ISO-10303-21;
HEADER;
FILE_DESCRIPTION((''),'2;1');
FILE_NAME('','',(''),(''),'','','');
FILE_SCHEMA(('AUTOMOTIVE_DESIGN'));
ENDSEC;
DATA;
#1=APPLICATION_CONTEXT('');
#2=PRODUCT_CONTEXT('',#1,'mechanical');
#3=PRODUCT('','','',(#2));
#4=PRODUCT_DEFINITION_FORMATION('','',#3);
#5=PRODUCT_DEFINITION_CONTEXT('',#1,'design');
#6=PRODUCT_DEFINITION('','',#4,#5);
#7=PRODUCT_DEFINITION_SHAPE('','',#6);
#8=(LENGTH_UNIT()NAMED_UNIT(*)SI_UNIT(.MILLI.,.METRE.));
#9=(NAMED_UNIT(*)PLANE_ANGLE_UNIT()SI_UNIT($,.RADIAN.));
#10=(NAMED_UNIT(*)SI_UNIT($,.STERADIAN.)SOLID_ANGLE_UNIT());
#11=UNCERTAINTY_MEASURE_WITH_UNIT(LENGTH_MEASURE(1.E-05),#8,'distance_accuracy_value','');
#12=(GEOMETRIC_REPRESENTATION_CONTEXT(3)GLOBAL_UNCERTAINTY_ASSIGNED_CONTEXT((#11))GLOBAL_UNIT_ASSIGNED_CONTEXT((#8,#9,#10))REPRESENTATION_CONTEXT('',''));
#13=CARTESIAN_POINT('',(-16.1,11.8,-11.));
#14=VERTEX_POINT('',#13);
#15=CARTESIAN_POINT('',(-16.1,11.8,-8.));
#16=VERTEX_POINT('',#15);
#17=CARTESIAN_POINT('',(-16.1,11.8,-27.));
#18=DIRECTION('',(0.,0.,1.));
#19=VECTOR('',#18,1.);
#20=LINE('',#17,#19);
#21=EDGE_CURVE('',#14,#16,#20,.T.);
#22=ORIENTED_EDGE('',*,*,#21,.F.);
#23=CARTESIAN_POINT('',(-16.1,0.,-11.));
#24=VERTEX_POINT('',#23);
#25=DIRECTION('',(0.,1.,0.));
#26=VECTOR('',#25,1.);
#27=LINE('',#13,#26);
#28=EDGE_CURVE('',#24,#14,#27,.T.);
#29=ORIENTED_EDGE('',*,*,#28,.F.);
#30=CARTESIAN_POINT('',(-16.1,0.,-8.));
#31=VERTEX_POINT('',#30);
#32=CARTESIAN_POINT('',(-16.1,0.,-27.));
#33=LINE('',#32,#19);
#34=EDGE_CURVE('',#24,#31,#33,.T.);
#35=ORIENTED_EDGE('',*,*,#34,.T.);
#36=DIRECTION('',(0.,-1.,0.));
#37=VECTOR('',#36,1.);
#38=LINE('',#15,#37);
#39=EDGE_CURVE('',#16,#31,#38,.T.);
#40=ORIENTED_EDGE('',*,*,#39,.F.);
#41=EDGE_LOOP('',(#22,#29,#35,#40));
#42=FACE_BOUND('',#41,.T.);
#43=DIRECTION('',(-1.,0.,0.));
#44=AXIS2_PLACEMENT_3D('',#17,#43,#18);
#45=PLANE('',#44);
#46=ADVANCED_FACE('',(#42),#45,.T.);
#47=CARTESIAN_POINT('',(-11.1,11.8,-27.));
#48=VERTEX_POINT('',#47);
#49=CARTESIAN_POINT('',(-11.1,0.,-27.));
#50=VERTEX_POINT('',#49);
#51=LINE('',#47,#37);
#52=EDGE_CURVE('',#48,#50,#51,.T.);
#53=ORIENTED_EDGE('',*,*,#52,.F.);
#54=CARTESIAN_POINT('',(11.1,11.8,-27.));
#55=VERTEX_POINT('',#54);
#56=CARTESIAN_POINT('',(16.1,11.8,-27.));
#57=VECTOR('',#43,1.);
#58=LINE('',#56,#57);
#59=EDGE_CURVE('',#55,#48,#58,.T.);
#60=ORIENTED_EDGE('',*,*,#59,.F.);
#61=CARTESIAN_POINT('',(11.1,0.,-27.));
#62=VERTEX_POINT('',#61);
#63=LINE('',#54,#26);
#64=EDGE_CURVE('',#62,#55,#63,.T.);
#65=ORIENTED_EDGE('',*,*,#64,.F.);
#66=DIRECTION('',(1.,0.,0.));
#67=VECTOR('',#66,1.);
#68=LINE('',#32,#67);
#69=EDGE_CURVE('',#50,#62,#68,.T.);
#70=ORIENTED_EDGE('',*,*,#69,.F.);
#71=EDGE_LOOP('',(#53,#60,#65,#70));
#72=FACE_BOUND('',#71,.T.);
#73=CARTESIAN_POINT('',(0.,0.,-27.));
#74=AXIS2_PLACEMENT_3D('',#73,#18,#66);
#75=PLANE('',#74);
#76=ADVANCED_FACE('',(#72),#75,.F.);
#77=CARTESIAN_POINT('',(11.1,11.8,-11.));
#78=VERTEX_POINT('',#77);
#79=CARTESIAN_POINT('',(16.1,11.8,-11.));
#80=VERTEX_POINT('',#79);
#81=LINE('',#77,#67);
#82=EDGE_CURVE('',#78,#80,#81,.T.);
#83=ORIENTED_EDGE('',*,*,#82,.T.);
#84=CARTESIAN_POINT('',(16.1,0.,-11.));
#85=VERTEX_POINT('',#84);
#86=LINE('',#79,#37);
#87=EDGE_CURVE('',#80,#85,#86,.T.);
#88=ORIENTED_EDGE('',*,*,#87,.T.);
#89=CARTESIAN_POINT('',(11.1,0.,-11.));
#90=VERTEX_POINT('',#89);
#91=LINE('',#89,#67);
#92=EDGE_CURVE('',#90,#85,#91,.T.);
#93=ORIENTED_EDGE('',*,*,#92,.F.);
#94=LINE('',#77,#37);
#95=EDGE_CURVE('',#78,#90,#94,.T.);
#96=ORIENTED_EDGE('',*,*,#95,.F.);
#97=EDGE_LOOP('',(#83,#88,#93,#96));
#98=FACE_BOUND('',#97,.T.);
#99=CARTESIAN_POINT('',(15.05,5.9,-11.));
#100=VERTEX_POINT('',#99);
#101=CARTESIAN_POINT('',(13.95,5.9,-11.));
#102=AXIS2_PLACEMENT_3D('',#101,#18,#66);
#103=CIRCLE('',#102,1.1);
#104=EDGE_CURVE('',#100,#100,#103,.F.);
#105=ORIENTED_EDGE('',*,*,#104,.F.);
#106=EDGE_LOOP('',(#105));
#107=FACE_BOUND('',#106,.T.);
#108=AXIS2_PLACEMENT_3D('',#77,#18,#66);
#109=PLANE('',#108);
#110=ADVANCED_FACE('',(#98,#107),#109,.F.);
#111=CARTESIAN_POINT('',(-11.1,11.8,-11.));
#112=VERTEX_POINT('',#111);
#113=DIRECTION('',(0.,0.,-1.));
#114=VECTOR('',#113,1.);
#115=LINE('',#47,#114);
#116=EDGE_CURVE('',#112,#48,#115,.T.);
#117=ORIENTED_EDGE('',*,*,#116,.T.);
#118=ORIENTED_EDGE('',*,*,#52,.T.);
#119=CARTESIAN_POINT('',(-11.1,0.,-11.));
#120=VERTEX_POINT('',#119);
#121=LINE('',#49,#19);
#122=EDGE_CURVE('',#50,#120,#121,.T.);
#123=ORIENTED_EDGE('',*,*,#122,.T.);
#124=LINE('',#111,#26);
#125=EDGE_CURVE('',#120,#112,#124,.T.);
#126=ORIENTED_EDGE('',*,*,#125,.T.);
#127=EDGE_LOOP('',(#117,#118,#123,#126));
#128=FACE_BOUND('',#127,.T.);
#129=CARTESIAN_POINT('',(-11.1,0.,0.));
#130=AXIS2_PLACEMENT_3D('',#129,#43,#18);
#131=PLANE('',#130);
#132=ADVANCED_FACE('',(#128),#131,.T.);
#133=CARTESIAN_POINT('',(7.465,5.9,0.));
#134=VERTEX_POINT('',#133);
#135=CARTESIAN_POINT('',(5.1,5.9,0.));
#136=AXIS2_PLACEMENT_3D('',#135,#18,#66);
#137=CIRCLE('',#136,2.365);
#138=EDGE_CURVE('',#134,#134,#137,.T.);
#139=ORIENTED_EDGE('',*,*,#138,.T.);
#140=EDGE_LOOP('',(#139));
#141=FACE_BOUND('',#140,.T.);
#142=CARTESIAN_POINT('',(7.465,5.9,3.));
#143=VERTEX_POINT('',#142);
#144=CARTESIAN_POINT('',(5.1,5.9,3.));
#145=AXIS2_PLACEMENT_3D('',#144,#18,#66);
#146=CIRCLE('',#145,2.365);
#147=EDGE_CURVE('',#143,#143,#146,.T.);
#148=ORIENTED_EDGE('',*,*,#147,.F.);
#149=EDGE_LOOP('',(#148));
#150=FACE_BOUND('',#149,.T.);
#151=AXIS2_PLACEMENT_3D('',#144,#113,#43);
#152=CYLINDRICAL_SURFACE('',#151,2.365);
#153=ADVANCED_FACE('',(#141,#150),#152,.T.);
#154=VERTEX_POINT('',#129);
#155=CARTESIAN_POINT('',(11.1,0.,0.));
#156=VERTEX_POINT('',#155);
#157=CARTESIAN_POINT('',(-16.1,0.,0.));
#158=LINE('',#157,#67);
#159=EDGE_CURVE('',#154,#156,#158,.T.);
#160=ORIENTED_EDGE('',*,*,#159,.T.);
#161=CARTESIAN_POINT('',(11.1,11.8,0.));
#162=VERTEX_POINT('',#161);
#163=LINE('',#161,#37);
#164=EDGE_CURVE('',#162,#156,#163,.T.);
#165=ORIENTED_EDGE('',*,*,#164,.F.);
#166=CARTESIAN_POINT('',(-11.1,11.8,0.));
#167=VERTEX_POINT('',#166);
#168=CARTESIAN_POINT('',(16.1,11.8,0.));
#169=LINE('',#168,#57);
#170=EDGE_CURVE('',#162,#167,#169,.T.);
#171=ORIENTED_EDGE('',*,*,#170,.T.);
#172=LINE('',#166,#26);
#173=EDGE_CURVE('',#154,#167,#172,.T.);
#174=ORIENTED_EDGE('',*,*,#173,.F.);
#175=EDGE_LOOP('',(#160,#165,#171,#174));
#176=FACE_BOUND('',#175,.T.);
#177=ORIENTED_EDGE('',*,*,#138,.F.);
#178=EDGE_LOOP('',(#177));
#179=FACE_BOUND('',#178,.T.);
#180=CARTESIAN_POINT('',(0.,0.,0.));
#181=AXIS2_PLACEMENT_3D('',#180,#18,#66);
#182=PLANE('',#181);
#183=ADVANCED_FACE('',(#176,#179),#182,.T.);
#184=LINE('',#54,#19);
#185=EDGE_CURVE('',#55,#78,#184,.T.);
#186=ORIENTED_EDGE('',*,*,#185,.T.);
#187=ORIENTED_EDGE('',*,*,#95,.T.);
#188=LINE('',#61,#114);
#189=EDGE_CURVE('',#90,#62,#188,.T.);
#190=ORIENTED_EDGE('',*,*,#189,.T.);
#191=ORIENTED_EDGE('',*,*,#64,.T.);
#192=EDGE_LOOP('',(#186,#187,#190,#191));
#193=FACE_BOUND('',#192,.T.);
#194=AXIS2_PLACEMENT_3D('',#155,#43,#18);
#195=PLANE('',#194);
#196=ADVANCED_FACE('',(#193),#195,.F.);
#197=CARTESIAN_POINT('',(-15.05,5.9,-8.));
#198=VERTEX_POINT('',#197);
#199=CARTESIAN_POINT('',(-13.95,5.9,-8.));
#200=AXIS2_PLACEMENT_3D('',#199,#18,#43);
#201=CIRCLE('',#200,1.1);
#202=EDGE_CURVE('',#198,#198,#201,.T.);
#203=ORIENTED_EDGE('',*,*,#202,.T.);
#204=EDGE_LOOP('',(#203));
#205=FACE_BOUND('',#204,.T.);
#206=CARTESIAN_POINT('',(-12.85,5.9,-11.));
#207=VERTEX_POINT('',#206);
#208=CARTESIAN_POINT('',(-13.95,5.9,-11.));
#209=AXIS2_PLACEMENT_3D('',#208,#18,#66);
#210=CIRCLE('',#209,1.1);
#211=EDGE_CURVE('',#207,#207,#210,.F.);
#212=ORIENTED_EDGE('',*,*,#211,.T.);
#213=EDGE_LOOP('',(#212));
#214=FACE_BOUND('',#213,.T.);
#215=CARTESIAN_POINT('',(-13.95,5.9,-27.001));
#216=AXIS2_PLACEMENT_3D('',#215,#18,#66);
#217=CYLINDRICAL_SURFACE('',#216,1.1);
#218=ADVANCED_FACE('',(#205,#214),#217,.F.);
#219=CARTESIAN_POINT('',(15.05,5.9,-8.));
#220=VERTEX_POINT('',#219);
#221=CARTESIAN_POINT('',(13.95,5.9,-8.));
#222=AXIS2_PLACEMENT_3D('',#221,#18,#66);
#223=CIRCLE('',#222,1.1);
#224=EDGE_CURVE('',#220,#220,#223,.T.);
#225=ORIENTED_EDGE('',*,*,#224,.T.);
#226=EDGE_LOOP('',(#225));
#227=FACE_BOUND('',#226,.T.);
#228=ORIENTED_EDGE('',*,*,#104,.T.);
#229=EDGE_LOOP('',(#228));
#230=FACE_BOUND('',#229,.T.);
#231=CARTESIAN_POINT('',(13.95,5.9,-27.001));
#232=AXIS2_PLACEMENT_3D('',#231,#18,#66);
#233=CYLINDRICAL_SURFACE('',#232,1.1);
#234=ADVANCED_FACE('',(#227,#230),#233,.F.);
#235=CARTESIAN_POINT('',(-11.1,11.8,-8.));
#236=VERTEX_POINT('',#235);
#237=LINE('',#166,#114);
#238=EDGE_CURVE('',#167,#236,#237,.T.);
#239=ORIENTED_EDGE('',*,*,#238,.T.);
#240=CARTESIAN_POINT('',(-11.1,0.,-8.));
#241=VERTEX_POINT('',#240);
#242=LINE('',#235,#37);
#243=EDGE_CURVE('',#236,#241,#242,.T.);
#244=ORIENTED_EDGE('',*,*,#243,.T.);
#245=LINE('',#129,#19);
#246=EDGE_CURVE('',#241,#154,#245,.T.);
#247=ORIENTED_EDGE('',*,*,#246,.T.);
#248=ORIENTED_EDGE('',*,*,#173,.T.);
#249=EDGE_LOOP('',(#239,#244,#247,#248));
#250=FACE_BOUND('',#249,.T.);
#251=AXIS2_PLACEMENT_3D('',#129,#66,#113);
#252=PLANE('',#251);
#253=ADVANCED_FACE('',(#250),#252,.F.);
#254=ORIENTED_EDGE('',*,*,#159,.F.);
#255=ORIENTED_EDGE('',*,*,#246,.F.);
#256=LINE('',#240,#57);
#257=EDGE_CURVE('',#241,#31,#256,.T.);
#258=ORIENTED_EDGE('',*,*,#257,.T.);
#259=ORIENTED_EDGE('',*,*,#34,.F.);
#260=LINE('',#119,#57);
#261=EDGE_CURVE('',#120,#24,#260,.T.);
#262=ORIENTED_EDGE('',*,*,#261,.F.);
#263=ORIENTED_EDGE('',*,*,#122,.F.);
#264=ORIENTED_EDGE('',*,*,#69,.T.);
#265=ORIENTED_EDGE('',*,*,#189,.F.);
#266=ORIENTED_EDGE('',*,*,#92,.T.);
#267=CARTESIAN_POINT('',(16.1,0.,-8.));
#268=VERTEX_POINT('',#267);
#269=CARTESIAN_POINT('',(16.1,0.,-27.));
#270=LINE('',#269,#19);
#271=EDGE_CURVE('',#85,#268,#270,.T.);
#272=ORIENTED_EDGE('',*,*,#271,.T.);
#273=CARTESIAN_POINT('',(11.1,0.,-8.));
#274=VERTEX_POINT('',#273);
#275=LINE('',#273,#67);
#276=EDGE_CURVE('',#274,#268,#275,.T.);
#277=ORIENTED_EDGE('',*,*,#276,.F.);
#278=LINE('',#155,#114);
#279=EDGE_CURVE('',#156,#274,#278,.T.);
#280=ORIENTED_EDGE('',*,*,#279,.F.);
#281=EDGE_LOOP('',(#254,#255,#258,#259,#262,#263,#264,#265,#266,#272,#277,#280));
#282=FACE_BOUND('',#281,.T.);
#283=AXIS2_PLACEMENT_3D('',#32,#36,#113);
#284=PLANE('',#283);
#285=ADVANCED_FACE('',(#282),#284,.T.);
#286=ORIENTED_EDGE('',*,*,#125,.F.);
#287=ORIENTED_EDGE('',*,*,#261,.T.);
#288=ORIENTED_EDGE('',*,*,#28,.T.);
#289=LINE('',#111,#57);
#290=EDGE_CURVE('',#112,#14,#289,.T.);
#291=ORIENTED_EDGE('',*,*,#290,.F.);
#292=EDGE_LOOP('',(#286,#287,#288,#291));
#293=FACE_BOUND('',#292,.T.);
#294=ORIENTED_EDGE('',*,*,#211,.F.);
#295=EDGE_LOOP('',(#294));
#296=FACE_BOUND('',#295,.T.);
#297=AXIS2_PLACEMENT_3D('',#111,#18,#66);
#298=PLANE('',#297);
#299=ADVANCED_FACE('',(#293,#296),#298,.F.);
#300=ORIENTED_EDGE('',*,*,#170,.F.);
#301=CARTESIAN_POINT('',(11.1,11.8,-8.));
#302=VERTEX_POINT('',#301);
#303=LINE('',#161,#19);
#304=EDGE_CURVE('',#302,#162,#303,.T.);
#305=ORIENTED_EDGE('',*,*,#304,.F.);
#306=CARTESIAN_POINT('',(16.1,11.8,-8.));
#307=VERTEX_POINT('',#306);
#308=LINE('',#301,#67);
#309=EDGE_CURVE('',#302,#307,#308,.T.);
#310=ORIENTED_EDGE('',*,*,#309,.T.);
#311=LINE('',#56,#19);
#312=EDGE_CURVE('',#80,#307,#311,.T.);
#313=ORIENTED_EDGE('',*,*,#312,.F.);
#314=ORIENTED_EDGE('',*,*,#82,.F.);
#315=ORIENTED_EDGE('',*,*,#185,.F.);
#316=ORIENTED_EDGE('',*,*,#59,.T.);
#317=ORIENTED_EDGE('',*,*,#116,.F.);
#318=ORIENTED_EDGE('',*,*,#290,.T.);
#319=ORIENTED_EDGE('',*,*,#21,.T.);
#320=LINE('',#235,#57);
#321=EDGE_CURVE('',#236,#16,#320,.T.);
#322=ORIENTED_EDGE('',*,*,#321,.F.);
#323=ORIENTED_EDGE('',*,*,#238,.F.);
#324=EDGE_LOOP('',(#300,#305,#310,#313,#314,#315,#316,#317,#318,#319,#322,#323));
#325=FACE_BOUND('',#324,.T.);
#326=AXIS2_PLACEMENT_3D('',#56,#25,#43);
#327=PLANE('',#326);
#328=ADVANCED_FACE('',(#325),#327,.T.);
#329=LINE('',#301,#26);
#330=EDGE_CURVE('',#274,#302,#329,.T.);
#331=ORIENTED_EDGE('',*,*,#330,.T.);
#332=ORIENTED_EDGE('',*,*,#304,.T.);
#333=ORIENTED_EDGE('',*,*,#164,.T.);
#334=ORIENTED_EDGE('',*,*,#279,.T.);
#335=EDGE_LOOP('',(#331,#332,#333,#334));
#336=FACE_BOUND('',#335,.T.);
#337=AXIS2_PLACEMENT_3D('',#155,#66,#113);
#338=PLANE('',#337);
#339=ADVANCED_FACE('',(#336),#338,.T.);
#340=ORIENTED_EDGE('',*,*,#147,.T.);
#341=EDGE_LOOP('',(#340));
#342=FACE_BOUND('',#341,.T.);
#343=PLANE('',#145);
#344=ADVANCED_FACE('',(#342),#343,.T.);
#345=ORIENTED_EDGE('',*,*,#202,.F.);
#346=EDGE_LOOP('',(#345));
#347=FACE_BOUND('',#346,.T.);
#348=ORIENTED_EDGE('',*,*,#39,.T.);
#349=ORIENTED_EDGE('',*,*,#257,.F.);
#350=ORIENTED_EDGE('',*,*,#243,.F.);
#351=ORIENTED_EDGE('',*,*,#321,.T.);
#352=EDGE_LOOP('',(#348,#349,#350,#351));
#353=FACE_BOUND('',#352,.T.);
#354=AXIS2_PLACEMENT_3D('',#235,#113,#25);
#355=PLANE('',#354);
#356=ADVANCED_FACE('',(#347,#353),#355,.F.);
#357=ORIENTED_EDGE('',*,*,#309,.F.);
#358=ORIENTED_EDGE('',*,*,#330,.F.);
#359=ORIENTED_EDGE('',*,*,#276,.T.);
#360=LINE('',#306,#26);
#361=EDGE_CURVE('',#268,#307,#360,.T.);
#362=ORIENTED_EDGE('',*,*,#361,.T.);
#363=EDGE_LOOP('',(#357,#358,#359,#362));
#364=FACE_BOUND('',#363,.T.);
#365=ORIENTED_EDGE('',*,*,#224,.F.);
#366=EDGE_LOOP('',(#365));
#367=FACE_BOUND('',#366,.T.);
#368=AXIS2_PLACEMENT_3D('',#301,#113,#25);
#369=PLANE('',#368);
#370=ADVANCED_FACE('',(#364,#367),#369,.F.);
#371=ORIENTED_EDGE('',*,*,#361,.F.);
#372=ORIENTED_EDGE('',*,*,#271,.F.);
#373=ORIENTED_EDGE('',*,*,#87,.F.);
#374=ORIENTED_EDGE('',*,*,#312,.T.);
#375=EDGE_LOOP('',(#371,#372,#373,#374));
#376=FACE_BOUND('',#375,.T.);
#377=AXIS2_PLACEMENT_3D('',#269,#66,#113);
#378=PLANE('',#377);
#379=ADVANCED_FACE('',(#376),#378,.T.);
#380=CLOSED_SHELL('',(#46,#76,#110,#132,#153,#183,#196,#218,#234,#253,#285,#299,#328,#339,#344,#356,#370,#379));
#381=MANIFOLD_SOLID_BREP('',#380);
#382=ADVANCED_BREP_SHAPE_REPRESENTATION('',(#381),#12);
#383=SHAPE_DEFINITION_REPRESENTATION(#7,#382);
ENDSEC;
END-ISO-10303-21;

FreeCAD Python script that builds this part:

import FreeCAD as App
import Part
import Sketcher
from FreeCAD import Vector
Q = App.Units.Quantity


def add_polygon(sketch, points):
    """Adds a closed chain of lines whose ends are joined by coincident constraints."""
    first, n = sketch.GeometryCount, len(points)
    for a, b in zip(points, points[1:] + points[:1]):
        sketch.addGeometry(Part.LineSegment(App.Vector(*a, 0), App.Vector(*b, 0)), False)
    for i in range(n):
        sketch.addConstraint(Sketcher.Constraint("Coincident", first + i, 2, first + (i + 1) % n, 1))

doc = App.newDocument("Part")
body = doc.addObject("PartDesign::Body", "Body")

# Sketch on XY plane
sketch1 = body.newObject("Sketcher::SketchObject", "Sketch")
sketch1.AttachmentSupport = (doc.getObject("XY_Plane"), [""])
sketch1.MapMode = "FlatFace"
add_polygon(sketch1, [(-16, 12), (-16, 0), (16, 0), (16, 12)])  # lines 0-3
sketch1.addConstraint([
    Sketcher.Constraint("Vertical", 0),
    Sketcher.Constraint("Horizontal", 1),
    Sketcher.Constraint("Vertical", 2),
    Sketcher.Constraint("Horizontal", 3),
    Sketcher.Constraint("Symmetric", 0, 2, 1, 2, -1, 1),
    Sketcher.Constraint("DistanceX", 1, 1, 1, 2, Q("32.2 mm")),
    Sketcher.Constraint("DistanceY", 0, 2, 0, 1, Q("11.8 mm")),
])
pad1 = body.newObject("PartDesign::Pad", "Pad")
pad1.Profile = sketch1
pad1.Length = 27
pad1.Reversed = True

# Sketch on XY plane
sketch2 = body.newObject("Sketcher::SketchObject", "Sketch001")
sketch2.AttachmentSupport = (doc.getObject("XY_Plane"), [""])
sketch2.MapMode = "FlatFace"
sketch2.addGeometry(Part.Circle(Vector(5.1, 5.9, 0), Vector(0, 0, 1), 2.4), False)
sketch2.addConstraint([
    Sketcher.Constraint("Diameter", 0, Q("4.73 mm")),
    Sketcher.Constraint("DistanceX", -1, 1, 0, 3, Q("5.1 mm")),
    Sketcher.Constraint("DistanceY", -1, 1, 0, 3, Q("5.9 mm")),
])
pad2 = body.newObject("PartDesign::Pad", "Pad001")
pad2.Profile = sketch2
pad2.Length = 3

# Sketch on YZ plane
sketch3 = body.newObject("Sketcher::SketchObject", "Sketch002")
sketch3.AttachmentSupport = (doc.getObject("YZ_Plane"), [""])
sketch3.MapMode = "FlatFace"
sketch3.AttachmentOffset = App.Placement(Vector(0, 0, 16.1), App.Rotation())
add_polygon(sketch3, [(12, -11), (0, -11), (0, -27), (12, -27)])  # lines 0-3
sketch3.addConstraint([
    Sketcher.Constraint("Horizontal", 0),
    Sketcher.Constraint("Vertical", 1),
    Sketcher.Constraint("Horizontal", 2),
    Sketcher.Constraint("Vertical", 3),
    Sketcher.Constraint("PointOnObject", 0, 2, -2),
    Sketcher.Constraint("DistanceY", 1, 2, 1, 1, Q("16 mm")),
    Sketcher.Constraint("DistanceX", 0, 2, 0, 1, Q("11.8 mm")),
    Sketcher.Constraint("DistanceY", 0, 2, -1, 1, Q("11 mm")),
])
pocket1 = body.newObject("PartDesign::Pocket", "Pocket")
pocket1.Profile = sketch3
pocket1.Length = 5

# Sketch on YZ plane
sketch4 = body.newObject("Sketcher::SketchObject", "Sketch003")
sketch4.AttachmentSupport = (doc.getObject("YZ_Plane"), [""])
sketch4.MapMode = "FlatFace"
sketch4.AttachmentOffset = App.Placement(Vector(0, 0, -16.1), App.Rotation())
add_polygon(sketch4, [(12, -27), (0, -27), (0, -11), (12, -11)])  # lines 0-3
sketch4.addConstraint([
    Sketcher.Constraint("Horizontal", 0),
    Sketcher.Constraint("Vertical", 1),
    Sketcher.Constraint("Horizontal", 2),
    Sketcher.Constraint("Vertical", 3),
    Sketcher.Constraint("PointOnObject", 0, 2, -2),
    Sketcher.Constraint("DistanceY", 1, 1, 1, 2, Q("16 mm")),
    Sketcher.Constraint("DistanceX", 0, 2, 0, 1, Q("11.8 mm")),
    Sketcher.Constraint("DistanceY", 0, 2, -1, 1, Q("27 mm")),
])
pocket2 = body.newObject("PartDesign::Pocket", "Pocket001")
pocket2.Profile = sketch4
pocket2.Length = 5
pocket2.Reversed = True

# Sketch on YZ plane
sketch5 = body.newObject("Sketcher::SketchObject", "Sketch004")
sketch5.AttachmentSupport = (doc.getObject("YZ_Plane"), [""])
sketch5.MapMode = "FlatFace"
sketch5.AttachmentOffset = App.Placement(Vector(0, 0, -16.1), App.Rotation())
add_polygon(sketch5, [(12, -8), (0, -8), (0, 0), (12, 0)])  # lines 0-3
sketch5.addConstraint([
    Sketcher.Constraint("Horizontal", 0),
    Sketcher.Constraint("Vertical", 1),
    Sketcher.Constraint("Horizontal", 2),
    Sketcher.Constraint("Vertical", 3),
    Sketcher.Constraint("Coincident", 1, 2, -1, 1),
    Sketcher.Constraint("DistanceY", 1, 1, 1, 2, Q("8 mm")),
    Sketcher.Constraint("DistanceX", 0, 2, 0, 1, Q("11.8 mm")),
])
pocket3 = body.newObject("PartDesign::Pocket", "Pocket002")
pocket3.Profile = sketch5
pocket3.Length = 5
pocket3.Reversed = True

# Sketch on YZ plane
sketch6 = body.newObject("Sketcher::SketchObject", "Sketch005")
sketch6.AttachmentSupport = (doc.getObject("YZ_Plane"), [""])
sketch6.MapMode = "FlatFace"
sketch6.AttachmentOffset = App.Placement(Vector(0, 0, 16.1), App.Rotation())
add_polygon(sketch6, [(12, 0), (0, 0), (0, -8), (12, -8)])  # lines 0-3
sketch6.addConstraint([
    Sketcher.Constraint("Horizontal", 0),
    Sketcher.Constraint("Vertical", 1),
    Sketcher.Constraint("Horizontal", 2),
    Sketcher.Constraint("Vertical", 3),
    Sketcher.Constraint("Coincident", 0, 2, -1, 1),
    Sketcher.Constraint("DistanceY", 1, 2, 1, 1, Q("8 mm")),
    Sketcher.Constraint("DistanceX", 0, 2, 0, 1, Q("11.8 mm")),
])
pocket4 = body.newObject("PartDesign::Pocket", "Pocket003")
pocket4.Profile = sketch6
pocket4.Length = 5

# Sketch on XY plane
sketch7 = body.newObject("Sketcher::SketchObject", "Sketch006")
sketch7.AttachmentSupport = (doc.getObject("XY_Plane"), [""])
sketch7.MapMode = "FlatFace"
sketch7.AttachmentOffset = App.Placement(Vector(0, 0, -8), App.Rotation())
sketch7.addGeometry(Part.Circle(Vector(13.9, 5.9, 0), Vector(0, 0, 1), 1.1), False)
sketch7.addConstraint([
    Sketcher.Constraint("Diameter", 0, Q("2.2 mm")),
    Sketcher.Constraint("DistanceY", -1, 1, 0, 3, Q("5.9 mm")),
    Sketcher.Constraint("DistanceX", -1, 1, 0, 3, Q("13.95 mm")),
])
pocket5 = body.newObject("PartDesign::Pocket", "Pocket004")
pocket5.Profile = sketch7
pocket5.Type = "UpToFirst"

# Sketch on XY plane
sketch8 = body.newObject("Sketcher::SketchObject", "Sketch007")
sketch8.AttachmentSupport = (doc.getObject("XY_Plane"), [""])
sketch8.MapMode = "FlatFace"
sketch8.AttachmentOffset = App.Placement(Vector(0, 0, -8), App.Rotation())
sketch8.addGeometry(Part.Circle(Vector(-13.9, 5.9, 0), Vector(0, 0, 1), 1.1), False)
sketch8.addConstraint([
    Sketcher.Constraint("Diameter", 0, Q("2.2 mm")),
    Sketcher.Constraint("DistanceY", -1, 1, 0, 3, Q("5.9 mm")),
    Sketcher.Constraint("DistanceX", 0, 3, -1, 1, Q("13.95 mm")),
])
pocket6 = body.newObject("PartDesign::Pocket", "Pocket005")
pocket6.Profile = sketch8
pocket6.Type = "UpToFirst"

doc.recompute()
